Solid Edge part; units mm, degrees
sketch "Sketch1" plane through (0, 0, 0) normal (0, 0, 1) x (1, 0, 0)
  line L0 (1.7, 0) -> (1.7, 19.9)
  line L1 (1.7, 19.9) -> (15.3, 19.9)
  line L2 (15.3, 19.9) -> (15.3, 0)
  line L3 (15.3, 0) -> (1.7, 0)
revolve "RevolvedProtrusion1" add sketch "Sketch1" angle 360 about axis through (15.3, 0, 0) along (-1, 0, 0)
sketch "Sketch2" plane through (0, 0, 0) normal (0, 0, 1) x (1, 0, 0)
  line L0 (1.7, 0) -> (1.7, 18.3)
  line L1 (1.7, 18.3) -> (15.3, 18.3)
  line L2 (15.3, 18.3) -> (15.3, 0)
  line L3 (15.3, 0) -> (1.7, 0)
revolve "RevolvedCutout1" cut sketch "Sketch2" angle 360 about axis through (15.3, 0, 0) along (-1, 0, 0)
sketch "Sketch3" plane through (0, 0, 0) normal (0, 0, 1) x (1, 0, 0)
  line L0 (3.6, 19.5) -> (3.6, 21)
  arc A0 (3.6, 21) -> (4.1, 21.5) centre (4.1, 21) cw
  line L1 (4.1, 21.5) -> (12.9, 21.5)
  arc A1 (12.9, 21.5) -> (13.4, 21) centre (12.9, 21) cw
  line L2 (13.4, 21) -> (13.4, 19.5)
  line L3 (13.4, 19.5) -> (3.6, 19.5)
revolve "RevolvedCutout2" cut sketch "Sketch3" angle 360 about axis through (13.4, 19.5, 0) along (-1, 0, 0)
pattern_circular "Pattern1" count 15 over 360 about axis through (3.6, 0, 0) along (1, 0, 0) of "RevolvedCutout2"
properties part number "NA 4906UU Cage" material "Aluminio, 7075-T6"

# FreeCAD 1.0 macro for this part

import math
import FreeCAD as App
import Part
import Sketcher

V = App.Vector
Q = App.Units.Quantity


def add_polygon(sketch, points):
    """Adds a closed chain of lines whose ends are joined by coincident constraints."""
    first, n = sketch.GeometryCount, len(points)
    for a, b in zip(points, points[1:] + points[:1]):
        sketch.addGeometry(Part.LineSegment(App.Vector(*a, 0), App.Vector(*b, 0)), False)
    for i in range(n):
        sketch.addConstraint(Sketcher.Constraint("Coincident", first + i, 2, first + (i + 1) % n, 1))

doc = App.newDocument("Part")
body = doc.addObject("PartDesign::Body", "Body")

sketch1 = doc.addObject("Sketcher::SketchObject", "Sketch")
body.addObject(sketch1)
sketch1.AttachmentSupport = (doc.XY_Plane, [""])
sketch1.MapMode = "FlatFace"
add_polygon(sketch1, [(2, 20), (2, 0), (15, 0), (15, 20)])
sketch1.addConstraint(Sketcher.Constraint("Vertical", 0))
sketch1.addConstraint(Sketcher.Constraint("Horizontal", 1))
sketch1.addConstraint(Sketcher.Constraint("Vertical", 2))
sketch1.addConstraint(Sketcher.Constraint("Horizontal", 3))
sketch1.addConstraint(Sketcher.Constraint("PointOnObject", 0, 2, -1))
sketch1.addConstraint(Sketcher.Constraint("DistanceX", 1, 1, 1, 2, Q("13.6 mm")))
sketch1.addConstraint(Sketcher.Constraint("DistanceY", 0, 2, 0, 1, Q("19.9 mm")))
sketch1.addConstraint(Sketcher.Constraint("DistanceX", -1, 1, 0, 2, Q("1.7 mm")))
revolution = doc.addObject("PartDesign::Revolution", "Revolution")
body.addObject(revolution)
revolution.Profile = sketch1
revolution.ReferenceAxis = (sketch1, ["H_Axis"])
revolution.Angle = 360

sketch2 = doc.addObject("Sketcher::SketchObject", "Sketch001")
body.addObject(sketch2)
sketch2.AttachmentSupport = (doc.XY_Plane, [""])
sketch2.MapMode = "FlatFace"
add_polygon(sketch2, [(2, 18), (2, 0), (15, 0), (15, 18)])
sketch2.addConstraint(Sketcher.Constraint("Vertical", 0))
sketch2.addConstraint(Sketcher.Constraint("Horizontal", 1))
sketch2.addConstraint(Sketcher.Constraint("Vertical", 2))
sketch2.addConstraint(Sketcher.Constraint("Horizontal", 3))
sketch2.addConstraint(Sketcher.Constraint("PointOnObject", 0, 2, -1))
sketch2.addConstraint(Sketcher.Constraint("DistanceX", 1, 1, 1, 2, Q("13.6 mm")))
sketch2.addConstraint(Sketcher.Constraint("DistanceY", 0, 2, 0, 1, Q("18.3 mm")))
sketch2.addConstraint(Sketcher.Constraint("DistanceX", -1, 1, 0, 2, Q("1.7 mm")))
groove = doc.addObject("PartDesign::Groove", "Groove")
body.addObject(groove)
groove.Profile = sketch2
groove.ReferenceAxis = (sketch2, ["H_Axis"])
groove.Angle = 360

sketch3 = doc.addObject("Sketcher::SketchObject", "Sketch002")
body.addObject(sketch3)
sketch3.AttachmentSupport = (doc.XY_Plane, [""])
sketch3.MapMode = "FlatFace"
sketch3.addGeometry(Part.LineSegment(V(3.6, 21, 0), V(3.6, 19.5, 0)), False)
sketch3.addGeometry(Part.LineSegment(V(3.6, 19.5, 0), V(13.4, 19.5, 0)), False)
sketch3.addGeometry(Part.LineSegment(V(13.4, 19.5, 0), V(13.4, 21, 0)), False)
sketch3.addGeometry(Part.ArcOfCircle(Part.Circle(V(12.9, 21, 0), V(0, 0, 1), 0.5), math.radians(0), math.radians(90)), False)
sketch3.addGeometry(Part.LineSegment(V(12.9, 21.5, 0), V(4.1, 21.5, 0)), False)
sketch3.addGeometry(Part.ArcOfCircle(Part.Circle(V(4.1, 21, 0), V(0, 0, 1), 0.5), math.radians(90), math.radians(180)), False)
sketch3.addGeometry(Part.LineSegment(V(13.4, 19.5, 0), V(3.6, 19.5, 0)), True)
sketch3.addConstraint(Sketcher.Constraint("Coincident", 0, 2, 1, 1))
sketch3.addConstraint(Sketcher.Constraint("Coincident", 1, 2, 2, 1))
sketch3.addConstraint(Sketcher.Constraint("Tangent", 2, 2, 3, 1))
sketch3.addConstraint(Sketcher.Constraint("Tangent", 3, 2, 4, 1))
sketch3.addConstraint(Sketcher.Constraint("Tangent", 4, 2, 5, 1))
sketch3.addConstraint(Sketcher.Constraint("Tangent", 5, 2, 0, 1))
sketch3.addConstraint(Sketcher.Constraint("Vertical", 0))
sketch3.addConstraint(Sketcher.Constraint("Horizontal", 1))
sketch3.addConstraint(Sketcher.Constraint("Vertical", 2))
sketch3.addConstraint(Sketcher.Constraint("Horizontal", 4))
sketch3.addConstraint(Sketcher.Constraint("Horizontal", 6))
sketch3.addConstraint(Sketcher.Constraint("Coincident", 6, 1, 1, 2))
sketch3.addConstraint(Sketcher.Constraint("Equal", 3, 5))
sketch3.addConstraint(Sketcher.Constraint("Vertical", 5, 2, 6, 2))
sketch3.addConstraint(Sketcher.Constraint("Radius", 3, Q("0.5 mm")))
sketch3.addConstraint(Sketcher.Constraint("DistanceX", 1, 1, 1, 2, Q("9.8 mm")))
sketch3.addConstraint(Sketcher.Constraint("DistanceY", 0, 2, 0, 1, Q("1.5 mm")))
sketch3.addConstraint(Sketcher.Constraint("DistanceY", -1, 1, 3, 3, Q("21 mm")))
sketch3.addConstraint(Sketcher.Constraint("DistanceX", -1, 1, 3, 3, Q("12.9 mm")))
groove2 = doc.addObject("PartDesign::Groove", "Groove001")
body.addObject(groove2)
groove2.Profile = sketch3
groove2.ReferenceAxis = (sketch3, ["Axis0"])
groove2.Angle = 360
doc.recompute()

polarpattern = doc.addObject("PartDesign::PolarPattern", "PolarPattern")
body.addObject(polarpattern)
polarpattern.Originals = [groove2]
polarpattern.Axis = (doc.X_Axis, [""])
polarpattern.Angle = 360
polarpattern.Occurrences = 15
body.Tip = polarpattern

doc.recompute()
